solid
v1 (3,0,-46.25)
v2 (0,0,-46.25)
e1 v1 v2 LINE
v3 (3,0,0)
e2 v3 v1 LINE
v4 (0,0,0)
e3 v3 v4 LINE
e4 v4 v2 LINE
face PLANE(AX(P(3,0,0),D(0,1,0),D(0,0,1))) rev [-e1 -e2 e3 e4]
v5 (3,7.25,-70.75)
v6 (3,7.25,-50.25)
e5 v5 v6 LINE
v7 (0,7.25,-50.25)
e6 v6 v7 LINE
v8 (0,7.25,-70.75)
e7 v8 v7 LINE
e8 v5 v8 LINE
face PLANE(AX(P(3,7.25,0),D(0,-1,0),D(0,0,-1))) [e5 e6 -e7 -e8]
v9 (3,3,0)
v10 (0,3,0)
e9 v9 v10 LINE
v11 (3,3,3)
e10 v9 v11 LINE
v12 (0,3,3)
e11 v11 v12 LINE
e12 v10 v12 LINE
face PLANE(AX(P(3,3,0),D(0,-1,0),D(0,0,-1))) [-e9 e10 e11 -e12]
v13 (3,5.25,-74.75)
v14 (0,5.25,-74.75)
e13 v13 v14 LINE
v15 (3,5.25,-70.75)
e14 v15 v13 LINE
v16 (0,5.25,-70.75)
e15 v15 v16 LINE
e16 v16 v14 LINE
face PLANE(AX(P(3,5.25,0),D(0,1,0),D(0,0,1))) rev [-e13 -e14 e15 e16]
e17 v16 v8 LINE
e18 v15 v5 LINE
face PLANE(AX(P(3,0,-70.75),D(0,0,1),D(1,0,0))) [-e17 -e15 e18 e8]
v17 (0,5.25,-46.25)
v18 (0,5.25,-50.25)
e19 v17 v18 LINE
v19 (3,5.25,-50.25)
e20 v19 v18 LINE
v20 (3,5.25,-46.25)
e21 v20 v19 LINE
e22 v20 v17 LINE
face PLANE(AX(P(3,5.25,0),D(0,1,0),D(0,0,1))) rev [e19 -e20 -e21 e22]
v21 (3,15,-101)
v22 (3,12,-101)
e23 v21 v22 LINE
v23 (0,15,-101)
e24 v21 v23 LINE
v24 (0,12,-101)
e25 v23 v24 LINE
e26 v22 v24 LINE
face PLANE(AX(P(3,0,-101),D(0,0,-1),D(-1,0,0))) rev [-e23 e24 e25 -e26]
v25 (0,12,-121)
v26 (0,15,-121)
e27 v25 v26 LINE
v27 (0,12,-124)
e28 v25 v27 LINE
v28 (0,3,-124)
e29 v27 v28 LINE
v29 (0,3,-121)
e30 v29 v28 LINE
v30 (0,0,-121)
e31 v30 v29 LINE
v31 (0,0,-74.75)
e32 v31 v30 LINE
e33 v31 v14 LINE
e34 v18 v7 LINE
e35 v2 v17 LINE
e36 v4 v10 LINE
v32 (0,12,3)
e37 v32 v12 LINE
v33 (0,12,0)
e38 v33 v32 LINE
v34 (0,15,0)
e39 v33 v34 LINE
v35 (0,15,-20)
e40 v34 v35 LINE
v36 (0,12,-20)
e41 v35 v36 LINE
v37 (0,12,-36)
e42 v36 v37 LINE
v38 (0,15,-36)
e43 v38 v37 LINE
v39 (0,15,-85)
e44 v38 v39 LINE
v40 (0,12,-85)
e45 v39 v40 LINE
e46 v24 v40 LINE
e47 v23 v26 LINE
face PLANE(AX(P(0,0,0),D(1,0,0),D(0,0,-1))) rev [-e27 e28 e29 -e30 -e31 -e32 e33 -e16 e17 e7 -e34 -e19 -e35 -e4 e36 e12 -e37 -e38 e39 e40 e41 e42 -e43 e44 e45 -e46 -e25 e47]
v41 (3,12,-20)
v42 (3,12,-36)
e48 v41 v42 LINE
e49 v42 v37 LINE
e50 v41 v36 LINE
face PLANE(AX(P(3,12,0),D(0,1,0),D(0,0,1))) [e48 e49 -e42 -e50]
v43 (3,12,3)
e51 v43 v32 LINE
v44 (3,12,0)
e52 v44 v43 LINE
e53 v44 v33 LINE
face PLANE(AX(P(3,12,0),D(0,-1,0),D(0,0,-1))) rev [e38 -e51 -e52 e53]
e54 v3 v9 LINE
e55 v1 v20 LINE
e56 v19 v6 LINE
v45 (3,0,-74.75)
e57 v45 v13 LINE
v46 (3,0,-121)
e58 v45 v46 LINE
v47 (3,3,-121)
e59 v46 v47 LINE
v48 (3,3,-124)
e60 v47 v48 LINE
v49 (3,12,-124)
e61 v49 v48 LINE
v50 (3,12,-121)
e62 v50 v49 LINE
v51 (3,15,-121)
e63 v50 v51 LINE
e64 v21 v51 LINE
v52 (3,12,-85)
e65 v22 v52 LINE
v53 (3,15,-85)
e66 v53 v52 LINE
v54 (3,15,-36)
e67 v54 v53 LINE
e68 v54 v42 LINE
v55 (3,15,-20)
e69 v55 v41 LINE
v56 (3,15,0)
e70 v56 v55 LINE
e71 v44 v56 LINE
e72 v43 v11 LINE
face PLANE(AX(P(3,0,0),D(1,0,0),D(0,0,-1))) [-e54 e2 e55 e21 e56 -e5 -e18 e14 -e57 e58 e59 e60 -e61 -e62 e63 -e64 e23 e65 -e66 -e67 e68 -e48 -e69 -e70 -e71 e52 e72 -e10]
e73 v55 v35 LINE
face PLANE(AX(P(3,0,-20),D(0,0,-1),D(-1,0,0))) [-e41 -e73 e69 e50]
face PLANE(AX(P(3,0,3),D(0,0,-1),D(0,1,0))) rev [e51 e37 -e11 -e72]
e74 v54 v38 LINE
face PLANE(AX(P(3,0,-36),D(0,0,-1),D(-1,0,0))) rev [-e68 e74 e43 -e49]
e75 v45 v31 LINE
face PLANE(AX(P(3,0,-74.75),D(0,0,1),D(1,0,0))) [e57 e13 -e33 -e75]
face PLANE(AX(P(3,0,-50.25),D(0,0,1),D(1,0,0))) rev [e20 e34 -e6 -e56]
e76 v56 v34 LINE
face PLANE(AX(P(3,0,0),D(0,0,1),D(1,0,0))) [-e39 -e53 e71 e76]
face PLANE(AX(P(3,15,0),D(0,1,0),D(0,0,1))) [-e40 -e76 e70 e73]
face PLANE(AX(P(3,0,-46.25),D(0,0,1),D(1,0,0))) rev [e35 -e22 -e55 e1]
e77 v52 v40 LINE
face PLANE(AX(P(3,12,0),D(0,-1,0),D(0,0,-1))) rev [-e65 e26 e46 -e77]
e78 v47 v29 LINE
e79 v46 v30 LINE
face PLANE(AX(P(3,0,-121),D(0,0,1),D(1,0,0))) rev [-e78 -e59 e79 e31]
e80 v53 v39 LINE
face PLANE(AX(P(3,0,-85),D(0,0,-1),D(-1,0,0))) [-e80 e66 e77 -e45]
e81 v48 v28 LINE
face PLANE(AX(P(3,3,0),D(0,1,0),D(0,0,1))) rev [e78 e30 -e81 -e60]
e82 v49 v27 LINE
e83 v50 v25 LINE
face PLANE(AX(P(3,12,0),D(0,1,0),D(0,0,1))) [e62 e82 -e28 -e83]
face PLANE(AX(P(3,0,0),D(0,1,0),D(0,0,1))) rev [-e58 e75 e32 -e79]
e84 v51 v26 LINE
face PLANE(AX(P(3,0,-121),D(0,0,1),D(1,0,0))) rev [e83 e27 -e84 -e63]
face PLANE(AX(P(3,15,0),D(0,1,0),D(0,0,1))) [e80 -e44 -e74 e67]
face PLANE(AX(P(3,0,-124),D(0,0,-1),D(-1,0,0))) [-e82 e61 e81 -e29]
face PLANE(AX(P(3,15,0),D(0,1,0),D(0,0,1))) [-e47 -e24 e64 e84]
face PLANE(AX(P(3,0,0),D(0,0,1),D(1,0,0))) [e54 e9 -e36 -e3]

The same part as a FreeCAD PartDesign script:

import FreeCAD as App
import Part
import Sketcher
Q = App.Units.Quantity


def add_polygon(sketch, points):
    """Adds a closed chain of lines whose ends are joined by coincident constraints."""
    first, n = sketch.GeometryCount, len(points)
    for a, b in zip(points, points[1:] + points[:1]):
        sketch.addGeometry(Part.LineSegment(App.Vector(*a, 0), App.Vector(*b, 0)), False)
    for i in range(n):
        sketch.addConstraint(Sketcher.Constraint("Coincident", first + i, 2, first + (i + 1) % n, 1))

doc = App.newDocument("Part")
body = doc.addObject("PartDesign::Body", "Body")

# Sketch on YZ plane
sketch1 = body.newObject("Sketcher::SketchObject", "Sketch")
sketch1.AttachmentSupport = (doc.getObject("YZ_Plane"), [""])
sketch1.MapMode = "FlatFace"
add_polygon(sketch1, [(3, 0), (0, 0), (0, -46.2), (5.2, -46.2), (5.2, -50.2), (7.2, -50.2), (7.2, -70.8), (5.2, -70.8), (5.2, -74.8), (0, -74.8), (0, -121), (3, -121), (3, -124), (12, -124), (12, -121), (15, -121), (15, -101), (12, -101), (12, -85), (15, -85), (15, -36), (12, -36), (12, -20), (15, -20), (15, 0), (12, 0), (12, 3), (3, 3)])  # lines 0-27
sketch1.addConstraint(Sketcher.Constraint("Horizontal", 0))
sketch1.addConstraint(Sketcher.Constraint("Vertical", 1))
sketch1.addConstraint(Sketcher.Constraint("Horizontal", 2))
sketch1.addConstraint(Sketcher.Constraint("Vertical", 3))
sketch1.addConstraint(Sketcher.Constraint("Horizontal", 4))
sketch1.addConstraint(Sketcher.Constraint("Vertical", 5))
sketch1.addConstraint(Sketcher.Constraint("Horizontal", 6))
sketch1.addConstraint(Sketcher.Constraint("Vertical", 7))
sketch1.addConstraint(Sketcher.Constraint("Horizontal", 8))
sketch1.addConstraint(Sketcher.Constraint("Vertical", 9))
sketch1.addConstraint(Sketcher.Constraint("Horizontal", 10))
sketch1.addConstraint(Sketcher.Constraint("Vertical", 11))
sketch1.addConstraint(Sketcher.Constraint("Horizontal", 12))
sketch1.addConstraint(Sketcher.Constraint("Vertical", 13))
sketch1.addConstraint(Sketcher.Constraint("Horizontal", 14))
sketch1.addConstraint(Sketcher.Constraint("Vertical", 15))
sketch1.addConstraint(Sketcher.Constraint("Horizontal", 16))
sketch1.addConstraint(Sketcher.Constraint("Vertical", 17))
sketch1.addConstraint(Sketcher.Constraint("Horizontal", 18))
sketch1.addConstraint(Sketcher.Constraint("Vertical", 19))
sketch1.addConstraint(Sketcher.Constraint("Horizontal", 20))
sketch1.addConstraint(Sketcher.Constraint("Vertical", 21))
sketch1.addConstraint(Sketcher.Constraint("Horizontal", 22))
sketch1.addConstraint(Sketcher.Constraint("Vertical", 23))
sketch1.addConstraint(Sketcher.Constraint("Horizontal", 24))
sketch1.addConstraint(Sketcher.Constraint("Vertical", 25))
sketch1.addConstraint(Sketcher.Constraint("Horizontal", 26))
sketch1.addConstraint(Sketcher.Constraint("Vertical", 27))
sketch1.addConstraint(Sketcher.Constraint("Coincident", 0, 2, -1, 1))
sketch1.addConstraint(Sketcher.Constraint("PointOnObject", 8, 2, -2))
sketch1.addConstraint(Sketcher.Constraint("PointOnObject", 23, 2, -1))
sketch1.addConstraint(Sketcher.Constraint("Horizontal", 10, 2, 13, 2))
sketch1.addConstraint(Sketcher.Constraint("Vertical", 3, 2, 6, 2))
sketch1.addConstraint(Sketcher.Constraint("Vertical", 13, 2, 16, 2))
sketch1.addConstraint(Sketcher.Constraint("Vertical", 15, 2, 18, 2))
sketch1.addConstraint(Sketcher.Constraint("Vertical", 17, 2, 20, 2))
sketch1.addConstraint(Sketcher.Constraint("Vertical", 19, 2, 22, 2))
sketch1.addConstraint(Sketcher.Constraint("Vertical", 21, 2, 24, 2))
sketch1.addConstraint(Sketcher.Constraint("Vertical", 11, 2, 26, 2))
sketch1.addConstraint(Sketcher.Constraint("Equal", 10, 14))
sketch1.addConstraint(Sketcher.Constraint("Equal", 3, 7))
sketch1.addConstraint(Sketcher.Constraint("Equal", 1, 9))
sketch1.addConstraint(Sketcher.Constraint("Equal", 24, 11))
sketch1.addConstraint(Sketcher.Constraint("Equal", 17, 21))
sketch1.addConstraint(Sketcher.Constraint("Equal", 15, 23))
sketch1.addConstraint(Sketcher.Constraint("Equal", 13, 25))
sketch1.addConstraint(Sketcher.Constraint("DistanceX", 0, 2, 0, 1, Q("3 mm")))
sketch1.addConstraint(Sketcher.Constraint("DistanceX", 4, 1, 4, 2, Q("2 mm")))
sketch1.addConstraint(Sketcher.Constraint("DistanceX", 12, 1, 12, 2, Q("9 mm")))
sketch1.addConstraint(Sketcher.Constraint("DistanceY", 3, 2, 3, 1, Q("4 mm")))
sketch1.addConstraint(Sketcher.Constraint("DistanceY", 15, 1, 15, 2, Q("20 mm")))
sketch1.addConstraint(Sketcher.Constraint("DistanceY", 17, 1, 17, 2, Q("16 mm")))
sketch1.addConstraint(Sketcher.Constraint("DistanceY", 19, 1, 19, 2, Q("49 mm")))
sketch1.addConstraint(Sketcher.Constraint("DistanceY", 5, 2, 5, 1, Q("20.5 mm")))
sketch1.addConstraint(Sketcher.Constraint("DistanceX", 2, 1, 2, 2, Q("5.25 mm")))
pad1 = body.newObject("PartDesign::Pad", "Pad")
pad1.Profile = sketch1
pad1.Length = 3

doc.recompute()
